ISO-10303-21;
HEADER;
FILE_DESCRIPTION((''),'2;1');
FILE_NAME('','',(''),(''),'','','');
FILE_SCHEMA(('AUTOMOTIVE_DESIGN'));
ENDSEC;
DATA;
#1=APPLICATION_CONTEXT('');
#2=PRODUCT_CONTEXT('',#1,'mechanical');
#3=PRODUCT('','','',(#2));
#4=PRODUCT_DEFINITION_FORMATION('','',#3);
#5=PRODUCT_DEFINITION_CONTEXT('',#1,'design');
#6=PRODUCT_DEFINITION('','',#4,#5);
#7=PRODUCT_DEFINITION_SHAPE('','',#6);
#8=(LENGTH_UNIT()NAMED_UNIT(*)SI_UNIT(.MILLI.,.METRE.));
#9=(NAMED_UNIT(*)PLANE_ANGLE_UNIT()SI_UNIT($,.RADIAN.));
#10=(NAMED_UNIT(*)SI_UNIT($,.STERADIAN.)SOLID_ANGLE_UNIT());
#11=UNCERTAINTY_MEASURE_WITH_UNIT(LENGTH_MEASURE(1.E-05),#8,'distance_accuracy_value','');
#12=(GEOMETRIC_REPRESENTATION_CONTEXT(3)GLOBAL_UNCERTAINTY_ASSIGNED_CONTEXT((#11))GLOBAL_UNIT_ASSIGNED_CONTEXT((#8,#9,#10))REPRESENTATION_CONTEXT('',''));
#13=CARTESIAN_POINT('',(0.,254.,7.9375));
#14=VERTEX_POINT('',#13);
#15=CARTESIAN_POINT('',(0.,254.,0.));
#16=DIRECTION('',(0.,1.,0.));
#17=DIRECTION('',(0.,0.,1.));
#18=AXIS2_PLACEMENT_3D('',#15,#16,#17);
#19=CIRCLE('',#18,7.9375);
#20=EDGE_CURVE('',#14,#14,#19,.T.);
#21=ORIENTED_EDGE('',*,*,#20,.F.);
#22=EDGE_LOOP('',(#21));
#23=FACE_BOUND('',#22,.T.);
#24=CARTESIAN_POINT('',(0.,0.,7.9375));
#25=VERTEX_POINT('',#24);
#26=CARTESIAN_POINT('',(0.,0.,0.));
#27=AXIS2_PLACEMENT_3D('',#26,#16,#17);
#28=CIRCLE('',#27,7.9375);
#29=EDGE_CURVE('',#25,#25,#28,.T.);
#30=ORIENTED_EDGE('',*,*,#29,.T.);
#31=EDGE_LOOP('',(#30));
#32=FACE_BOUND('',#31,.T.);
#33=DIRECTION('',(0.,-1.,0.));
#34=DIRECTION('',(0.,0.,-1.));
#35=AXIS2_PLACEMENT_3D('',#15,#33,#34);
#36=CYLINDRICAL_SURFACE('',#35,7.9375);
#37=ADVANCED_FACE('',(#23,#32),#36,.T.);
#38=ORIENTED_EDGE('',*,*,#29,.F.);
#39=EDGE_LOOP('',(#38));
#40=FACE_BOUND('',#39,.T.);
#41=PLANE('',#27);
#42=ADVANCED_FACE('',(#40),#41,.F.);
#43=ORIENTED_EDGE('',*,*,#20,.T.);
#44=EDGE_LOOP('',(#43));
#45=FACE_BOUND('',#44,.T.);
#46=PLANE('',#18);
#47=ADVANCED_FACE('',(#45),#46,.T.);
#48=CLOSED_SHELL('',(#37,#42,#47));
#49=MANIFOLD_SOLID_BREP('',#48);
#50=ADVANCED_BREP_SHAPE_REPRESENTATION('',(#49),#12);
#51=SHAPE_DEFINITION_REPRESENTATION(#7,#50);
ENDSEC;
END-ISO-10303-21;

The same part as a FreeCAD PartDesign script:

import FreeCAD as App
import Part
import Sketcher
Q = App.Units.Quantity

doc = App.newDocument("Part")
params = doc.addObject("Spreadsheet::Sheet", "Params")
for row, (alias, value) in enumerate([
    ("sketch1_diameter", "0.625 in"),
    ("pad1_length", "10 in"),
], start=1):
    params.set(f"A{row}", alias)
    params.set(f"B{row}", "=" + value)
    params.setAlias(f"B{row}", alias)

body = doc.addObject("PartDesign::Body", "Body")

# Sketch on XZ plane
sketch1 = doc.addObject("Sketcher::SketchObject", "Sketch")
body.addObject(sketch1)
sketch1.AttachmentSupport = (doc.XZ_Plane, [""])
sketch1.MapMode = "FlatFace"
sketch1.addGeometry(Part.Circle(App.Vector(0, 0, 0), App.Vector(0, 0, 1), 8), False)
sketch1.addConstraint([
    Sketcher.Constraint("Coincident", 0, 3, -1, 1),
    Sketcher.Constraint("Diameter", 0, Q("0.625 in")),
])
sketch1.setExpression("Constraints[1]", "Params.sketch1_diameter")
pad1 = doc.addObject("PartDesign::Pad", "Pad")
body.addObject(pad1)
pad1.Profile = sketch1
pad1.setExpression("Length", "Params.pad1_length")
pad1.Reversed = True

doc.recompute()
